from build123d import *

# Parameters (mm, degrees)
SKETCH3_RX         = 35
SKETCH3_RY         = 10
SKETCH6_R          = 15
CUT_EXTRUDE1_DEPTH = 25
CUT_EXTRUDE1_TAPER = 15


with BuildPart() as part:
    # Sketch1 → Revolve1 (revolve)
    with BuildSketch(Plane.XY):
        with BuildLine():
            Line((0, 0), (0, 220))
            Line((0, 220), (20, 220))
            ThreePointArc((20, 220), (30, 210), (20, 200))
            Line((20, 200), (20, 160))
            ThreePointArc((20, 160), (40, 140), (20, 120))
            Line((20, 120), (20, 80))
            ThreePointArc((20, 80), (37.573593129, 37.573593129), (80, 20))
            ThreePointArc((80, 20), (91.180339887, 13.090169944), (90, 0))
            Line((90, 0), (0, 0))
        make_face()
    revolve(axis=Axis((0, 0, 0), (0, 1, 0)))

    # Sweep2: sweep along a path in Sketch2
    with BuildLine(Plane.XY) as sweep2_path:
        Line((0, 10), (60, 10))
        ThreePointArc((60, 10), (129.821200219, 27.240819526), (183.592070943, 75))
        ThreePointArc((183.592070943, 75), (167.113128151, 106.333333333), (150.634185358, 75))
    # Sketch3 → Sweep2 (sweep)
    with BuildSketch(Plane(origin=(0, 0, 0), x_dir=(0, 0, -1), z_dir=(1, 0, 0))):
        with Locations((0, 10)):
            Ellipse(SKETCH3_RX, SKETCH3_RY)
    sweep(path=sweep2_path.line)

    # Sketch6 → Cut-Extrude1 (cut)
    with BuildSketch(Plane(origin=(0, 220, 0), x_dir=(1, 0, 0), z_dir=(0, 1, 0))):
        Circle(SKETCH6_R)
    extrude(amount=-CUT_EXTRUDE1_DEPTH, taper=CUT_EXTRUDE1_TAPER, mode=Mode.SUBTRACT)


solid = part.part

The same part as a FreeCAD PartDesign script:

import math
import FreeCAD as App
import Part
import Sketcher
from FreeCAD import Vector
Q = App.Units.Quantity

doc = App.newDocument("Part")
body = doc.addObject("PartDesign::Body", "Body")

sketch1 = doc.addObject("Sketcher::SketchObject", "Sketch")
body.addObject(sketch1)
sketch1.AttachmentSupport = (doc.XY_Plane, [""])
sketch1.MapMode = "FlatFace"
sketch1.addGeometry(Part.LineSegment(Vector(0, 220, 0), Vector(0, 0, 0)), False)
sketch1.addGeometry(Part.LineSegment(Vector(0, 0, 0), Vector(90, 0, 0)), False)
sketch1.addGeometry(Part.ArcOfCircle(Part.Circle(Vector(80, 7.5, 0), Vector(0, 0, 1), 12.5), math.radians(-36.869898), math.radians(90)), False)
sketch1.addGeometry(Part.ArcOfCircle(Part.Circle(Vector(80, 80, 0), Vector(0, 0, 1), 60), math.radians(-180), math.radians(-90)), False)
sketch1.addGeometry(Part.LineSegment(Vector(20, 80, 0), Vector(20, 120, 0)), False)
sketch1.addGeometry(Part.ArcOfCircle(Part.Circle(Vector(20, 140, 0), Vector(0, 0, 1), 20), math.radians(-90), math.radians(90)), False)
sketch1.addGeometry(Part.LineSegment(Vector(20, 160, 0), Vector(20, 200, 0)), False)
sketch1.addGeometry(Part.ArcOfCircle(Part.Circle(Vector(20, 210, 0), Vector(0, 0, 1), 10), math.radians(-90), math.radians(90)), False)
sketch1.addGeometry(Part.LineSegment(Vector(20, 220, 0), Vector(0, 220, 0)), False)
sketch1.addConstraint(Sketcher.Constraint("Coincident", 0, 2, 1, 1))
sketch1.addConstraint(Sketcher.Constraint("Coincident", 1, 2, 2, 1))
sketch1.addConstraint(Sketcher.Constraint("Tangent", 2, 2, 3, 2))
sketch1.addConstraint(Sketcher.Constraint("Tangent", 3, 1, 4, 1))
sketch1.addConstraint(Sketcher.Constraint("Coincident", 4, 2, 5, 1))
sketch1.addConstraint(Sketcher.Constraint("Coincident", 5, 2, 6, 1))
sketch1.addConstraint(Sketcher.Constraint("Coincident", 6, 2, 7, 1))
sketch1.addConstraint(Sketcher.Constraint("Tangent", 7, 2, 8, 1))
sketch1.addConstraint(Sketcher.Constraint("Coincident", 8, 2, 0, 1))
sketch1.addConstraint(Sketcher.Constraint("Vertical", 0))
sketch1.addConstraint(Sketcher.Constraint("Horizontal", 1))
sketch1.addConstraint(Sketcher.Constraint("Vertical", 4))
sketch1.addConstraint(Sketcher.Constraint("Vertical", 6))
sketch1.addConstraint(Sketcher.Constraint("Horizontal", 8))
sketch1.addConstraint(Sketcher.Constraint("Coincident", 0, 2, -1, 1))
sketch1.addConstraint(Sketcher.Constraint("Vertical", 2, 3, 3, 3))
sketch1.addConstraint(Sketcher.Constraint("Vertical", 5, 3, 7, 3))
sketch1.addConstraint(Sketcher.Constraint("Vertical", 7, 3, 3, 1))
sketch1.addConstraint(Sketcher.Constraint("Vertical", 4, 2, 5, 2))
sketch1.addConstraint(Sketcher.Constraint("Equal", 4, 6))
sketch1.addConstraint(Sketcher.Constraint("Radius", 3, Q("60 mm")))
sketch1.addConstraint(Sketcher.Constraint("Radius", 5, Q("20 mm")))
sketch1.addConstraint(Sketcher.Constraint("Radius", 7, Q("10 mm")))
sketch1.addConstraint(Sketcher.Constraint("Radius", 2, Q("12.5 mm")))
sketch1.addConstraint(Sketcher.Constraint("DistanceX", 1, 1, 1, 2, Q("90 mm")))
sketch1.addConstraint(Sketcher.Constraint("DistanceX", 8, 2, 8, 1, Q("20 mm")))
sketch1.addConstraint(Sketcher.Constraint("DistanceY", 0, 2, 0, 1, Q("220 mm")))
revolution = doc.addObject("PartDesign::Revolution", "Revolution")
body.addObject(revolution)
revolution.Profile = sketch1
revolution.ReferenceAxis = (sketch1, ["V_Axis"])
revolution.Angle = 360

sketch2 = doc.addObject("Sketcher::SketchObject", "Sketch001")
body.addObject(sketch2)
sketch2.AttachmentSupport = (doc.YZ_Plane, [""])
sketch2.MapMode = "FlatFace"
sketch2.addGeometry(Part.Ellipse(Vector(10, -35, 0), Vector(20, 0, 0), Vector(10, 0, 0)), False)
sketch2.addConstraint(Sketcher.Constraint("Block", 0))

sketch3 = doc.addObject("Sketcher::SketchObject", "Sketch002")
body.addObject(sketch3)
sketch3.AttachmentSupport = (doc.XY_Plane, [""])
sketch3.MapMode = "FlatFace"
sketch3.addGeometry(Part.LineSegment(Vector(0, 10, 0), Vector(60, 10, 0)), False)
sketch3.addGeometry(Part.ArcOfCircle(Part.Circle(Vector(60, 160, 0), Vector(0, 0, 1), 150), math.radians(-90), math.radians(-34.518108)), False)
sketch3.addGeometry(Part.ArcOfCircle(Part.Circle(Vector(167.113128, 86.333333, 0), Vector(0, 0, 1), 20), math.radians(-34.518108), math.radians(214.518108)), False)
sketch3.addConstraint(Sketcher.Constraint("Tangent", 0, 2, 1, 1))
sketch3.addConstraint(Sketcher.Constraint("Tangent", 1, 2, 2, 1))
sketch3.addConstraint(Sketcher.Constraint("Horizontal", 0))
sketch3.addConstraint(Sketcher.Constraint("PointOnObject", 0, 1, -2))
sketch3.addConstraint(Sketcher.Constraint("Horizontal", 1, 2, 2, 2))
sketch3.addConstraint(Sketcher.Constraint("Radius", 1, Q("150 mm")))
sketch3.addConstraint(Sketcher.Constraint("Radius", 2, Q("20 mm")))
sketch3.addConstraint(Sketcher.Constraint("DistanceX", 0, 1, 0, 2, Q("60 mm")))
sketch3.addConstraint(Sketcher.Constraint("DistanceY", -1, 1, 1, 3, Q("160 mm")))
sketch3.addConstraint(Sketcher.Constraint("DistanceY", -1, 1, 1, 2, Q("75 mm")))
doc.recompute()

additivepipe = doc.addObject("PartDesign::AdditivePipe", "AdditivePipe")
body.addObject(additivepipe)
additivepipe.Profile = sketch2
additivepipe.Spine = (sketch3, ["Edge1", "Edge2", "Edge3"])

sketch4 = doc.addObject("Sketcher::SketchObject", "Sketch003")
body.addObject(sketch4)
sketch4.AttachmentSupport = (doc.XZ_Plane, [""])
sketch4.MapMode = "FlatFace"
sketch4.AttachmentOffset = App.Placement(Vector(0, 0, -220), App.Rotation())
sketch4.addGeometry(Part.Circle(Vector(0, 0, 0), Vector(0, 0, 1), 15), False)
sketch4.addConstraint(Sketcher.Constraint("Coincident", 0, 3, -1, 1))
sketch4.addConstraint(Sketcher.Constraint("Diameter", 0, Q("30 mm")))
pocket1 = doc.addObject("PartDesign::Pocket", "Pocket")
body.addObject(pocket1)
pocket1.Profile = sketch4
pocket1.Length = 25
pocket1.Reversed = True
pocket1.TaperAngle = -15

doc.recompute()
